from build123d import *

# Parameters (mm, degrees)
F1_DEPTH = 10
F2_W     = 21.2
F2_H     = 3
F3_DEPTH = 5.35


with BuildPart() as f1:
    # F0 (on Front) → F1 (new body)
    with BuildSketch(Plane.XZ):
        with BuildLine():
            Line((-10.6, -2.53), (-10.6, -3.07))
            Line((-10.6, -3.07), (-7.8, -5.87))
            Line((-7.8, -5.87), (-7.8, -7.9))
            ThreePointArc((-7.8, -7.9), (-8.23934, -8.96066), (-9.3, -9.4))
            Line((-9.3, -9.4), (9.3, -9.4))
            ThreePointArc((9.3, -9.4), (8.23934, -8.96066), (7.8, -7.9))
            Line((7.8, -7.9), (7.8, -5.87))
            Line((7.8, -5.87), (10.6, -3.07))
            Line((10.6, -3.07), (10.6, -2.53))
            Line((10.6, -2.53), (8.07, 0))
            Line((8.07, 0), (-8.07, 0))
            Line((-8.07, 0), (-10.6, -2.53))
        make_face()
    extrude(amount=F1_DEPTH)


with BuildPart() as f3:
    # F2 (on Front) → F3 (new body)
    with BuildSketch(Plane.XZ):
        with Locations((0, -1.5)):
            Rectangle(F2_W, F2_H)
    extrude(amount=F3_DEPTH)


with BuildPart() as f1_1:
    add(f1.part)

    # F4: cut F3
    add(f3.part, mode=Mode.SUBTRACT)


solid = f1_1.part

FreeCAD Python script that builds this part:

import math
import FreeCAD as App
import Part
import Sketcher

V = App.Vector

doc = App.newDocument("Part")
body = doc.addObject("PartDesign::Body", "Body")

sketch1 = body.newObject("Sketcher::SketchObject", "Sketch")
sketch1.AttachmentSupport = (doc.getObject("XZ_Plane"), [""])
sketch1.MapMode = "FlatFace"
sketch1.addGeometry([
    Part.LineSegment(V(-10.6, -2.5, 0), V(-10.6, -3.1, 0)),
    Part.LineSegment(V(-10.6, -3.1, 0), V(-7.8, -5.9, 0)),
    Part.LineSegment(V(-7.8, -5.9, 0), V(-7.8, -7.9, 0)),
    Part.ArcOfCircle(Part.Circle(V(-9.3, -7.9, 0), V(0, 0, 1), 1.5), math.radians(-90), math.radians(0)),
    Part.LineSegment(V(-9.3, -9.4, 0), V(9.3, -9.4, 0)),
    Part.ArcOfCircle(Part.Circle(V(9.3, -7.9, 0), V(0, 0, 1), 1.5), math.radians(-180), math.radians(-90)),
    Part.LineSegment(V(7.8, -7.9, 0), V(7.8, -5.9, 0)),
    Part.LineSegment(V(7.8, -5.9, 0), V(10.6, -3.1, 0)),
    Part.LineSegment(V(10.6, -3.1, 0), V(10.6, -2.5, 0)),
    Part.LineSegment(V(10.6, -2.5, 0), V(8.1, 0, 0)),
    Part.LineSegment(V(8.1, 0, 0), V(-8.1, 0, 0)),
    Part.LineSegment(V(-8.1, 0, 0), V(-10.6, -2.5, 0)),
], False)
sketch1.addConstraint([
    Sketcher.Constraint("Coincident", 0, 2, 1, 1),
    Sketcher.Constraint("Coincident", 1, 2, 2, 1),
    Sketcher.Constraint("Tangent", 2, 2, 3, 2),
    Sketcher.Constraint("Tangent", 3, 1, 4, 1),
    Sketcher.Constraint("Tangent", 4, 2, 5, 2),
    Sketcher.Constraint("Tangent", 5, 1, 6, 1),
    Sketcher.Constraint("Coincident", 6, 2, 7, 1),
    Sketcher.Constraint("Coincident", 7, 2, 8, 1),
    Sketcher.Constraint("Coincident", 8, 2, 9, 1),
    Sketcher.Constraint("Coincident", 9, 2, 10, 1),
    Sketcher.Constraint("Coincident", 10, 2, 11, 1),
    Sketcher.Constraint("Coincident", 11, 2, 0, 1),
    Sketcher.Constraint("Vertical", 0),
    Sketcher.Constraint("Vertical", 2),
    Sketcher.Constraint("Horizontal", 4),
    Sketcher.Constraint("Vertical", 6),
    Sketcher.Constraint("Vertical", 8),
    Sketcher.Constraint("Horizontal", 10),
    Sketcher.Constraint("Equal", 3, 5),
    Sketcher.Constraint("Symmetric", 9, 2, 10, 2, -1, 1),
    Sketcher.Constraint("Symmetric", 1, 2, 6, 2, -2),
    Sketcher.Constraint("Symmetric", 0, 2, 7, 2, -2),
    Sketcher.Constraint("Perpendicular", 1, 7),
    Sketcher.Constraint("Perpendicular", 7, 9),
    Sketcher.Constraint("Perpendicular", 9, 11),
    Sketcher.Constraint("Radius", 3, 1.500001),
    Sketcher.Constraint("DistanceX", 4, 1, 4, 2, 18.6),
    Sketcher.Constraint("DistanceX", 10, 2, 10, 1, 16.14),
    Sketcher.Constraint("DistanceY", 0, 2, 0, 1, 0.54),
    Sketcher.Constraint("DistanceY", 2, 2, 2, 1, 2.03),
    Sketcher.Constraint("DistanceY", 3, 3, -1, 1, 7.899999),
])
pad1 = body.newObject("PartDesign::Pad", "Pad")
pad1.Profile = sketch1
pad1.Length = 10
body2 = doc.addObject("PartDesign::Body", "Body001")

sketch2 = body2.newObject("Sketcher::SketchObject", "Sketch001")
sketch2.AttachmentSupport = (doc.getObject("XZ_Plane001"), [""])
sketch2.MapMode = "FlatFace"
sketch2.addGeometry([
    Part.LineSegment(V(-10.6, 0, 0), V(-10.6, -3, 0)),
    Part.LineSegment(V(-10.6, -3, 0), V(10.6, -3, 0)),
    Part.LineSegment(V(10.6, -3, 0), V(10.6, 0, 0)),
    Part.LineSegment(V(10.6, 0, 0), V(-10.6, 0, 0)),
], False)
sketch2.addConstraint([
    Sketcher.Constraint("Coincident", 0, 2, 1, 1),
    Sketcher.Constraint("Coincident", 1, 2, 2, 1),
    Sketcher.Constraint("Coincident", 2, 2, 3, 1),
    Sketcher.Constraint("Coincident", 3, 2, 0, 1),
    Sketcher.Constraint("Vertical", 0),
    Sketcher.Constraint("Horizontal", 1),
    Sketcher.Constraint("Vertical", 2),
    Sketcher.Constraint("Horizontal", 3),
    Sketcher.Constraint("Symmetric", 2, 2, 3, 2, -1, 1),
    Sketcher.Constraint("DistanceY", 0, 2, 0, 1, 3.0),
    Sketcher.Constraint("DistanceX", 1, 1, 1, 2, 21.2),
])
pad2 = body2.newObject("PartDesign::Pad", "Pad001")
pad2.Profile = sketch2
pad2.Length = 5.35
doc.recompute()

boolean = body.newObject("PartDesign::Boolean", "Boolean")
boolean.Type = "Cut"
boolean.addObjects([body2])

doc.recompute()
